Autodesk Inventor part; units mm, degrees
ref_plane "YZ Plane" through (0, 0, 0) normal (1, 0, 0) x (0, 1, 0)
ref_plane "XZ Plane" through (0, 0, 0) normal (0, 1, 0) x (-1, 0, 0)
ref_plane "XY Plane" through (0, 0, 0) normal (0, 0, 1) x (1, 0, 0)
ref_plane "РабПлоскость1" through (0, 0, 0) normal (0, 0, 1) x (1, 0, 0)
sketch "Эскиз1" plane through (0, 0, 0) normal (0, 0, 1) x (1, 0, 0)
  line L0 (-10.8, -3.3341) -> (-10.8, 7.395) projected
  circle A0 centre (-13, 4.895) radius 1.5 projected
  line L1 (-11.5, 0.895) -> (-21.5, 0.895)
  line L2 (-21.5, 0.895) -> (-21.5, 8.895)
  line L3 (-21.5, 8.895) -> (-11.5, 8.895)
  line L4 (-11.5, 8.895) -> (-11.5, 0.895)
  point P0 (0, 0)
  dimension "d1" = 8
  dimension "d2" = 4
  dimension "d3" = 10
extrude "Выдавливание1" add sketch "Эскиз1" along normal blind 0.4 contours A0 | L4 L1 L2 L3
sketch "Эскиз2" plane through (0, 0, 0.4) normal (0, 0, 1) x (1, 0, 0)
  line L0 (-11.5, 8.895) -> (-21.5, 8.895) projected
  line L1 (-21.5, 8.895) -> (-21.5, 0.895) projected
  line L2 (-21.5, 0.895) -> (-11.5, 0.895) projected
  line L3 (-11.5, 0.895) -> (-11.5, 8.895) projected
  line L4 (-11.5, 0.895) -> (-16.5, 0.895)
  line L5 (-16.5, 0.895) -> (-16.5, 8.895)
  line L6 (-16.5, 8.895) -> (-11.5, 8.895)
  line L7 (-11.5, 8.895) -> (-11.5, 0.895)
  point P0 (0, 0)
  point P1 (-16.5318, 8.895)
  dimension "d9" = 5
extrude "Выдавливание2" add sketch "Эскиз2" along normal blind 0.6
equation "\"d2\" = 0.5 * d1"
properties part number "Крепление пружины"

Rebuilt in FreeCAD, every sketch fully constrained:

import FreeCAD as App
import Part
import Sketcher

V = App.Vector
Q = App.Units.Quantity

doc = App.newDocument("Part")
body = doc.addObject("PartDesign::Body", "Body")

sketch1 = doc.addObject("Sketcher::SketchObject", "Sketch")
body.addObject(sketch1)
sketch1.AttachmentSupport = (doc.XY_Plane, [""])
sketch1.MapMode = "FlatFace"
sketch1.addGeometry([
    Part.LineSegment(V(-12, 1, 0), V(-12, 9, 0)),
    Part.LineSegment(V(-12, 9, 0), V(-22, 9, 0)),
    Part.LineSegment(V(-22, 9, 0), V(-22, 1, 0)),
    Part.LineSegment(V(-22, 1, 0), V(-12, 1, 0)),
], False)
sketch1.addConstraint([
    Sketcher.Constraint("Coincident", 0, 2, 1, 1),
    Sketcher.Constraint("Coincident", 1, 2, 2, 1),
    Sketcher.Constraint("Coincident", 2, 2, 3, 1),
    Sketcher.Constraint("Coincident", 3, 2, 0, 1),
    Sketcher.Constraint("Vertical", 0),
    Sketcher.Constraint("Horizontal", 1),
    Sketcher.Constraint("Vertical", 2),
    Sketcher.Constraint("Horizontal", 3),
    Sketcher.Constraint("DistanceX", 1, 2, 1, 1, Q("10 mm")),
    Sketcher.Constraint("DistanceY", 0, 1, 0, 2, Q("8 mm")),
    Sketcher.Constraint("DistanceX", 0, 2, -1, 1, Q("11.5 mm")),
    Sketcher.Constraint("DistanceY", -1, 1, 0, 2, Q("8.895 mm")),
])
pad1 = doc.addObject("PartDesign::Pad", "Pad")
body.addObject(pad1)
pad1.Profile = sketch1
pad1.Length = 0.4

sketch2 = doc.addObject("Sketcher::SketchObject", "Sketch001")
body.addObject(sketch2)
sketch2.AttachmentSupport = (doc.XY_Plane, [""])
sketch2.MapMode = "FlatFace"
sketch2.AttachmentOffset = App.Placement(V(0, 0, 0.4), App.Rotation())
sketch2.addGeometry([
    Part.LineSegment(V(-12, 1, 0), V(-12, 9, 0)),
    Part.LineSegment(V(-12, 9, 0), V(-22, 9, 0)),
    Part.LineSegment(V(-22, 9, 0), V(-22, 1, 0)),
    Part.LineSegment(V(-22, 1, 0), V(-12, 1, 0)),
], False)
sketch2.addConstraint([
    Sketcher.Constraint("Coincident", 0, 2, 1, 1),
    Sketcher.Constraint("Coincident", 1, 2, 2, 1),
    Sketcher.Constraint("Coincident", 2, 2, 3, 1),
    Sketcher.Constraint("Coincident", 3, 2, 0, 1),
    Sketcher.Constraint("Vertical", 0),
    Sketcher.Constraint("Horizontal", 1),
    Sketcher.Constraint("Vertical", 2),
    Sketcher.Constraint("Horizontal", 3),
    Sketcher.Constraint("DistanceX", 1, 2, 1, 1, Q("10 mm")),
    Sketcher.Constraint("DistanceY", 0, 1, 0, 2, Q("8 mm")),
    Sketcher.Constraint("DistanceX", 0, 2, -1, 1, Q("11.5 mm")),
    Sketcher.Constraint("DistanceY", -1, 1, 0, 2, Q("8.895 mm")),
])
pad2 = doc.addObject("PartDesign::Pad", "Pad001")
body.addObject(pad2)
pad2.Profile = sketch2
pad2.Length = 0.6

doc.recompute()
